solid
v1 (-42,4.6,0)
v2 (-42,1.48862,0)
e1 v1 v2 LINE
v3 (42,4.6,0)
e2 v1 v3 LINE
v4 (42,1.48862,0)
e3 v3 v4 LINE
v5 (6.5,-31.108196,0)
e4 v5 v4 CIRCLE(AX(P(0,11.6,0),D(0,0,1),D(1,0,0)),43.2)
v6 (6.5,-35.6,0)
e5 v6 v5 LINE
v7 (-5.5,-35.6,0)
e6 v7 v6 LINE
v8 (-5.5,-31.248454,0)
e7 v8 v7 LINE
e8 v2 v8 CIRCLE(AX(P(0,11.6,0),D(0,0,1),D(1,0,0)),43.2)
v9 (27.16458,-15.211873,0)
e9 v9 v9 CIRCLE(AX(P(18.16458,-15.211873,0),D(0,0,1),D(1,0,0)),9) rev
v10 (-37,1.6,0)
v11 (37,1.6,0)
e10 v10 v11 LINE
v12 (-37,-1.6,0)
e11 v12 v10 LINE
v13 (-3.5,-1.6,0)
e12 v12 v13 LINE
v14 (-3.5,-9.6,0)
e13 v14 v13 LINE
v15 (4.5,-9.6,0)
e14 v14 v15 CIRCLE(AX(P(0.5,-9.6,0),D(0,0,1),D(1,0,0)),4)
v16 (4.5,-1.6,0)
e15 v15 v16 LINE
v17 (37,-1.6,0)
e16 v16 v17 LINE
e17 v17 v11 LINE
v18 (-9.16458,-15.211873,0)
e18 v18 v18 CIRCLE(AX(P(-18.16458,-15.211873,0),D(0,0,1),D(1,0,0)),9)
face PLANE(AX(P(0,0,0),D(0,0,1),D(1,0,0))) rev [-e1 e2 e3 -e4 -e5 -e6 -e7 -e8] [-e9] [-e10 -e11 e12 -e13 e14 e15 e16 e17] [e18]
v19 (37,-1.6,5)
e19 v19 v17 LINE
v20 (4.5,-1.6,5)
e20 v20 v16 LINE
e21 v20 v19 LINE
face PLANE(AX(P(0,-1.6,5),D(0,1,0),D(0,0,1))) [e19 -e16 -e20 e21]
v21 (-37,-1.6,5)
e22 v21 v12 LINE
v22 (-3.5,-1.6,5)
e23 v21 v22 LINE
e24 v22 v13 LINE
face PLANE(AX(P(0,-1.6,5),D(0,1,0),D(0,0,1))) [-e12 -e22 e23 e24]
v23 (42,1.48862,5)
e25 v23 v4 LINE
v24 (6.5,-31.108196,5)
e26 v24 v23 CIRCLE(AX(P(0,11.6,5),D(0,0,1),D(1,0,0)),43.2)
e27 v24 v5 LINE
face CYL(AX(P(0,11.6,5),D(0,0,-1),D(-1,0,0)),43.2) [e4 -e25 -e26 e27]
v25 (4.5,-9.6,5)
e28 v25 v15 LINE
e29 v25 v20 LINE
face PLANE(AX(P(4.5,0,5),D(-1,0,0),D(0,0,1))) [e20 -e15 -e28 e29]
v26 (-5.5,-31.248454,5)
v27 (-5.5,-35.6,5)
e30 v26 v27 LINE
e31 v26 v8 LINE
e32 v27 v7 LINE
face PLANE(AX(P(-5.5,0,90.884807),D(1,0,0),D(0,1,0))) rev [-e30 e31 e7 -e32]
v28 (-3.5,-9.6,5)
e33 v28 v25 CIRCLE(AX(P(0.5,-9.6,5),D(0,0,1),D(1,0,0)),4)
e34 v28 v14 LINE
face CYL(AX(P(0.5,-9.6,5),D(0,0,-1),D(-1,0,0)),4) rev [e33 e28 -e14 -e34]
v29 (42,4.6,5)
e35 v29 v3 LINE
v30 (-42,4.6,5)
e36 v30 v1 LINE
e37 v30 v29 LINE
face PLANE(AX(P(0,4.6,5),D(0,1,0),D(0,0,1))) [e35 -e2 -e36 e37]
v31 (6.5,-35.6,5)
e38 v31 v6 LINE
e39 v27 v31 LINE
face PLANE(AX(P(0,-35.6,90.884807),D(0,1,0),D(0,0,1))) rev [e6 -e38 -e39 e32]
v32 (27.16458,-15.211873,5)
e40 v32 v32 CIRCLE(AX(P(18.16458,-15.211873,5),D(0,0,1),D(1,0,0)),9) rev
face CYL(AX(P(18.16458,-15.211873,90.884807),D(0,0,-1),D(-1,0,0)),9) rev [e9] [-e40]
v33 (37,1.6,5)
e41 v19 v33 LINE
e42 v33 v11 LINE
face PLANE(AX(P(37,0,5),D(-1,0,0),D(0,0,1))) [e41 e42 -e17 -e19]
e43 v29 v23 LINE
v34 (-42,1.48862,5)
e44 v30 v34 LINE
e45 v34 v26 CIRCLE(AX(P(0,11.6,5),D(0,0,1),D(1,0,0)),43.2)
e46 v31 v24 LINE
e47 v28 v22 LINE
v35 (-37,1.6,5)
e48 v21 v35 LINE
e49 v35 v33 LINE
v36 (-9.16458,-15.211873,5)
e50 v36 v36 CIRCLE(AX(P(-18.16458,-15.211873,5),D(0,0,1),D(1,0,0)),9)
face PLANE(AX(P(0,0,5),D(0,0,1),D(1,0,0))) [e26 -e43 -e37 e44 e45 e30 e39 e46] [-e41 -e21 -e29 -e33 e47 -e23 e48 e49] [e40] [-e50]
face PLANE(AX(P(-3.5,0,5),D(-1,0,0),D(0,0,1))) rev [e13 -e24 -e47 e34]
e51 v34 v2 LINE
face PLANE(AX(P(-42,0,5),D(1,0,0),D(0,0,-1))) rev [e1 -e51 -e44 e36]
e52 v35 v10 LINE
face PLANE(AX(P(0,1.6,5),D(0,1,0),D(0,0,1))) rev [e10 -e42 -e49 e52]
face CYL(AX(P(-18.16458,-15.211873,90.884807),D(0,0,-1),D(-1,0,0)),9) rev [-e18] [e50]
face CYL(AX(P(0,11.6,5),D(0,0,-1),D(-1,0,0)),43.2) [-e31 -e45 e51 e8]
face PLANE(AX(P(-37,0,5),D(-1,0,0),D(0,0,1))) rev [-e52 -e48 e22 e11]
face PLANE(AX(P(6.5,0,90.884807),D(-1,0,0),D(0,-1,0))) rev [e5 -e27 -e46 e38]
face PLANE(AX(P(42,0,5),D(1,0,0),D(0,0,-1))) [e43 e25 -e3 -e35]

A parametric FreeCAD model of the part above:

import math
import FreeCAD as App
import Part
import Sketcher
from FreeCAD import Vector

doc = App.newDocument("Part")
body = doc.addObject("PartDesign::Body", "Body")

# Sketch on XY plane
sketch1 = body.newObject("Sketcher::SketchObject", "Sketch")
sketch1.AttachmentSupport = (doc.getObject("XY_Plane"), [""])
sketch1.MapMode = "FlatFace"
sketch1.addGeometry([
    Part.LineSegment(Vector(42, 4.6, 0), Vector(-42, 4.6, 0)),  # 0
    Part.LineSegment(Vector(-42, 4.6, 0), Vector(-42, 1.5, 0)),  # 1
    Part.ArcOfCircle(Part.Circle(Vector(0, 11.6, 0), Vector(0, 0, 1), 43.2), math.radians(-166.46), math.radians(-157.98)),  # 2
    Part.LineSegment(Vector(-40, -4.6, 0), Vector(-5.5, -4.6, 0)),  # 3
    Part.LineSegment(Vector(-5.5, -4.6, 0), Vector(-5.5, -9.6, 0)),  # 4
    Part.ArcOfCircle(Part.Circle(Vector(0.5, -9.6, 0), Vector(0, 0, 1), 6), math.radians(180), math.radians(360)),  # 5
    Part.LineSegment(Vector(6.5, -9.6, 0), Vector(6.5, -4.6, 0)),  # 6
    Part.LineSegment(Vector(6.5, -4.6, 0), Vector(40, -4.6, 0)),  # 7
    Part.ArcOfCircle(Part.Circle(Vector(0, 11.6, 0), Vector(0, 0, 1), 43.2), math.radians(-22.02), math.radians(-13.54)),  # 8
    Part.LineSegment(Vector(42, 1.5, 0), Vector(42, 4.6, 0)),  # 9
    Part.LineSegment(Vector(-3.5, -9.6, 0), Vector(-3.5, -1.6, 0)),  # 10
    Part.LineSegment(Vector(-3.5, -1.6, 0), Vector(-37, -1.6, 0)),  # 11
    Part.LineSegment(Vector(-37, -1.6, 0), Vector(-37, 1.6, 0)),  # 12
    Part.LineSegment(Vector(-37, 1.6, 0), Vector(37, 1.6, 0)),  # 13
    Part.LineSegment(Vector(37, 1.6, 0), Vector(37, -1.6, 0)),  # 14
    Part.LineSegment(Vector(37, -1.6, 0), Vector(4.5, -1.6, 0)),  # 15
    Part.LineSegment(Vector(4.5, -1.6, 0), Vector(4.5, -9.6, 0)),  # 16
    Part.ArcOfCircle(Part.Circle(Vector(0.5, -9.6, 0), Vector(0, 0, 1), 4), math.radians(180), math.radians(360)),  # 17
], False)
sketch1.addConstraint([
    Sketcher.Constraint("Coincident", 0, 2, 1, 1),
    Sketcher.Constraint("Coincident", 1, 2, 2, 1),
    Sketcher.Constraint("Coincident", 2, 2, 3, 1),
    Sketcher.Constraint("Coincident", 3, 2, 4, 1),
    Sketcher.Constraint("Tangent", 4, 2, 5, 1),
    Sketcher.Constraint("Tangent", 5, 2, 6, 1),
    Sketcher.Constraint("Coincident", 6, 2, 7, 1),
    Sketcher.Constraint("Coincident", 7, 2, 8, 1),
    Sketcher.Constraint("Coincident", 8, 2, 9, 1),
    Sketcher.Constraint("Coincident", 9, 2, 0, 1),
    Sketcher.Constraint("Coincident", 10, 2, 11, 1),
    Sketcher.Constraint("Coincident", 11, 2, 12, 1),
    Sketcher.Constraint("Coincident", 12, 2, 13, 1),
    Sketcher.Constraint("Coincident", 13, 2, 14, 1),
    Sketcher.Constraint("Coincident", 14, 2, 15, 1),
    Sketcher.Constraint("Coincident", 15, 2, 16, 1),
    Sketcher.Constraint("Tangent", 16, 2, 17, 2),
    Sketcher.Constraint("Tangent", 17, 1, 10, 1),
    Sketcher.Constraint("Horizontal", 0),
    Sketcher.Constraint("Vertical", 1),
    Sketcher.Constraint("Horizontal", 3),
    Sketcher.Constraint("Vertical", 4),
    Sketcher.Constraint("Vertical", 6),
    Sketcher.Constraint("Horizontal", 7),
    Sketcher.Constraint("Vertical", 9),
    Sketcher.Constraint("Vertical", 10),
    Sketcher.Constraint("Horizontal", 11),
    Sketcher.Constraint("Vertical", 12),
    Sketcher.Constraint("Horizontal", 13),
    Sketcher.Constraint("Vertical", 14),
    Sketcher.Constraint("Horizontal", 15),
    Sketcher.Constraint("Vertical", 16),
    Sketcher.Constraint("Coincident", 8, 3, 2, 3),
    Sketcher.Constraint("Coincident", 17, 3, 5, 3),
    Sketcher.Constraint("Equal", 2, 8),
    Sketcher.Constraint("Symmetric", 11, 2, 13, 2, -1, 1),
    Sketcher.Constraint("Symmetric", 2, 2, 7, 2, -2),
    Sketcher.Constraint("Horizontal", 1, 2, 8, 2),
    Sketcher.Constraint("Horizontal", 11, 2, 14, 2),
    Sketcher.Constraint("Radius", 5, 6.0),
    Sketcher.Constraint("Radius", 17, 4.0),
    Sketcher.Constraint("Radius", 2, 43.2),
    Sketcher.Constraint("DistanceX", 0, 2, 0, 1, 84.0),
    Sketcher.Constraint("DistanceX", 13, 1, 13, 2, 74.0),
    Sketcher.Constraint("DistanceY", 4, 2, 4, 1, 5.0),
    Sketcher.Constraint("DistanceY", 10, 1, 10, 2, 8.0),
    Sketcher.Constraint("DistanceX", 11, 2, 11, 1, 33.5),
    Sketcher.Constraint("DistanceY", 12, 1, 12, 2, 3.2),
    Sketcher.Constraint("DistanceY", 0, 2, 8, 3, 7.0),
    Sketcher.Constraint("DistanceY", 12, 2, 0, 2, 3.0),
])
pad1 = body.newObject("PartDesign::Pad", "Pad")
pad1.Profile = sketch1
pad1.Length = 5

# Sketch on XY plane
sketch2 = body.newObject("Sketcher::SketchObject", "Sketch001")
sketch2.AttachmentSupport = (doc.getObject("XY_Plane"), [""])
sketch2.MapMode = "FlatFace"
sketch2.addGeometry([
    Part.LineSegment(Vector(40, -4.6, 0), Vector(6.5, -4.6, 0)),  # 0
    Part.LineSegment(Vector(6.5, -4.6, 0), Vector(6.5, -9.6, 0)),  # 1
    Part.ArcOfCircle(Part.Circle(Vector(0.5, -9.6, 0), Vector(0, 0, 1), 6), math.radians(180), math.radians(360)),  # 2
    Part.LineSegment(Vector(-5.5, -9.6, 0), Vector(-5.5, -4.6, 0)),  # 3
    Part.LineSegment(Vector(-5.5, -4.6, 0), Vector(-40, -4.6, 0)),  # 4
    Part.ArcOfCircle(Part.Circle(Vector(0, 11.6, 0), Vector(0, 0, 1), 43.2), math.radians(-158), math.radians(-108)),  # 5
    Part.ArcOfCircle(Part.Circle(Vector(0, 11.6, 0), Vector(0, 0, 1), 43.2), math.radians(-108.36), math.radians(-97.31)),  # 6
    Part.LineSegment(Vector(-5.5, -31.2, 0), Vector(-5.5, -35.6, 0)),  # 7
    Part.LineSegment(Vector(-5.5, -35.6, 0), Vector(6.5, -35.6, 0)),  # 8
    Part.LineSegment(Vector(6.5, -35.6, 0), Vector(6.5, -31.1, 0)),  # 9
    Part.ArcOfCircle(Part.Circle(Vector(0, 11.6, 0), Vector(0, 0, 1), 43.2), math.radians(-81), math.radians(-22)),  # 10
    Part.Circle(Vector(18.2, -15.2, 0), Vector(0, 0, 1), 9),  # 11
    Part.Circle(Vector(-18.2, -15.2, 0), Vector(0, 0, 1), 9),  # 12
], False)
sketch2.addConstraint([
    Sketcher.Constraint("Coincident", 0, 2, 1, 1),
    Sketcher.Constraint("Tangent", 1, 2, 2, 2),
    Sketcher.Constraint("Tangent", 2, 1, 3, 1),
    Sketcher.Constraint("Coincident", 3, 2, 4, 1),
    Sketcher.Constraint("Coincident", 4, 2, 5, 1),
    Sketcher.Constraint("Tangent", 5, 2, 6, 1),
    Sketcher.Constraint("Coincident", 6, 2, 7, 1),
    Sketcher.Constraint("Coincident", 7, 2, 8, 1),
    Sketcher.Constraint("Coincident", 8, 2, 9, 1),
    Sketcher.Constraint("Coincident", 9, 2, 10, 1),
    Sketcher.Constraint("Coincident", 10, 2, 0, 1),
    Sketcher.Constraint("Horizontal", 0),
    Sketcher.Constraint("Vertical", 1),
    Sketcher.Constraint("Vertical", 3),
    Sketcher.Constraint("Horizontal", 4),
    Sketcher.Constraint("Vertical", 7),
    Sketcher.Constraint("Horizontal", 8),
    Sketcher.Constraint("Vertical", 9),
    Sketcher.Constraint("Coincident", 10, 3, 5, 3),
    Sketcher.Constraint("Equal", 5, 6),
    Sketcher.Constraint("Equal", 6, 10),
    Sketcher.Constraint("Equal", 11, 12),
    Sketcher.Constraint("Symmetric", 11, 3, 12, 3, -2),
    Sketcher.Constraint("Symmetric", 4, 2, 10, 2, -2),
    Sketcher.Constraint("Vertical", 3, 2, 6, 2),
    Sketcher.Constraint("Vertical", 1, 2, 8, 2),
    Sketcher.Constraint("Diameter", 11, 18.0),
    Sketcher.Constraint("Radius", 2, 6.0),
    Sketcher.Constraint("Radius", 5, 43.2),
    Sketcher.Constraint("DistanceY", 1, 2, 1, 1, 5.0),
    Sketcher.Constraint("DistanceY", 7, 2, 2, 1, 26.0),
    Sketcher.Constraint("DistanceX", -1, 1, 2, 3, 0.5),
    Sketcher.Constraint("DistanceY", 2, 3, -1, 1, 9.6),
    Sketcher.Constraint("DistanceY", -1, 1, 5, 3, 11.6),
    Sketcher.Constraint("DistanceY", 5, 2, -1, 1, 29.4),
    Sketcher.Constraint("DistanceX", -1, 1, 11, 3, 18.16458),
    Sketcher.Constraint("DistanceY", 6, 2, 12, 3, 16.036581),
])
pad2 = body.newObject("PartDesign::Pad", "Pad001")
pad2.Profile = sketch2
pad2.Length = 5

doc.recompute()
